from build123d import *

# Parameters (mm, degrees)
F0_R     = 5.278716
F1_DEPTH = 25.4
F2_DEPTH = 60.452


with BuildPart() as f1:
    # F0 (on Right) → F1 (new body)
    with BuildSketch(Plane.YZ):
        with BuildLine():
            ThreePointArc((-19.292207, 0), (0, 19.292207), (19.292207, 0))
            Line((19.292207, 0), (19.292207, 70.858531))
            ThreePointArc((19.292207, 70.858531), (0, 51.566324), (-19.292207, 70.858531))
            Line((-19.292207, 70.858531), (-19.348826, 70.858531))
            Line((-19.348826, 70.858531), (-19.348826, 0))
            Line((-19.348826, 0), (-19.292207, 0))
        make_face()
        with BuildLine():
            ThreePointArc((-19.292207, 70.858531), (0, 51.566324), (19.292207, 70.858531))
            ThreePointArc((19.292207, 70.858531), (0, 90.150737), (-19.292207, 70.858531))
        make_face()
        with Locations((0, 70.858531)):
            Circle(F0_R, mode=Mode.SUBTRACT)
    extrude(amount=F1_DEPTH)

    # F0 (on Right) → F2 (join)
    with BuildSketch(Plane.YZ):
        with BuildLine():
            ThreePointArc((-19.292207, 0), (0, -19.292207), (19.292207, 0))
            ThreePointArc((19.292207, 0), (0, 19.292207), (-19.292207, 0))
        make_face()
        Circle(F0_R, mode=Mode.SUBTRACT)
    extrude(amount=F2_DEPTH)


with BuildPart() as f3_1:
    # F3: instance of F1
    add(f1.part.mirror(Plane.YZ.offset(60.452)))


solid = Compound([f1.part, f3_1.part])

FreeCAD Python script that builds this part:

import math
import FreeCAD as App
import Part
import Sketcher

V = App.Vector
Q = App.Units.Quantity

doc = App.newDocument("Part")
body = doc.addObject("PartDesign::Body", "Body")

# Sketch on YZ plane
sketch1 = body.newObject("Sketcher::SketchObject", "Sketch")
sketch1.AttachmentSupport = (doc.getObject("YZ_Plane"), [""])
sketch1.MapMode = "FlatFace"
sketch1.addGeometry(Part.ArcOfCircle(Part.Circle(V(0, 0, 0), V(0, 0, 1), 19.29), math.radians(0), math.radians(180)), False)
sketch1.addGeometry(Part.LineSegment(V(19.29, 0, 0), V(19.29, 70.86, 0)), False)
sketch1.addGeometry(Part.ArcOfCircle(Part.Circle(V(0, 70.86, 0), V(0, 0, 1), 19.29), math.radians(0), math.radians(180)), False)
sketch1.addGeometry(Part.LineSegment(V(-19.29, 70.86, 0), V(-19.35, 70.86, 0)), False)
sketch1.addGeometry(Part.LineSegment(V(-19.35, 70.86, 0), V(-19.35, 0, 0)), False)
sketch1.addGeometry(Part.LineSegment(V(-19.35, 0, 0), V(-19.29, 0, 0)), False)
sketch1.addGeometry(Part.Circle(V(0, 70.86, 0), V(0, 0, 1), 5.28), False)
sketch1.addConstraint(Sketcher.Constraint("Tangent", 0, 1, 1, 1))
sketch1.addConstraint(Sketcher.Constraint("Tangent", 1, 2, 2, 1))
sketch1.addConstraint(Sketcher.Constraint("Coincident", 2, 2, 3, 1))
sketch1.addConstraint(Sketcher.Constraint("Coincident", 3, 2, 4, 1))
sketch1.addConstraint(Sketcher.Constraint("Coincident", 4, 2, 5, 1))
sketch1.addConstraint(Sketcher.Constraint("Coincident", 5, 2, 0, 2))
sketch1.addConstraint(Sketcher.Constraint("Vertical", 1))
sketch1.addConstraint(Sketcher.Constraint("Horizontal", 3))
sketch1.addConstraint(Sketcher.Constraint("Vertical", 4))
sketch1.addConstraint(Sketcher.Constraint("Horizontal", 5))
sketch1.addConstraint(Sketcher.Constraint("Coincident", 0, 3, -1, 1))
sketch1.addConstraint(Sketcher.Constraint("Coincident", 6, 3, 2, 3))
sketch1.addConstraint(Sketcher.Constraint("Equal", 0, 2))
sketch1.addConstraint(Sketcher.Constraint("PointOnObject", 4, 2, -1))
sketch1.addConstraint(Sketcher.Constraint("Horizontal", 1, 2, 2, 2))
sketch1.addConstraint(Sketcher.Constraint("Diameter", 6, Q("10.557432 mm")))
sketch1.addConstraint(Sketcher.Constraint("Radius", 0, Q("19.292207 mm")))
sketch1.addConstraint(Sketcher.Constraint("DistanceX", 3, 2, 3, 1, Q("0.056619 mm")))
sketch1.addConstraint(Sketcher.Constraint("DistanceY", 1, 1, 1, 2, Q("70.858531 mm")))
pad1 = body.newObject("PartDesign::Pad", "Pad")
pad1.Profile = sketch1
pad1.Length = Q("1 in")

# Sketch on YZ plane
sketch2 = body.newObject("Sketcher::SketchObject", "Sketch001")
sketch2.AttachmentSupport = (doc.getObject("YZ_Plane"), [""])
sketch2.MapMode = "FlatFace"
sketch2.addGeometry(Part.Circle(V(0, 0, 0), V(0, 0, 1), 19), False)
sketch2.addGeometry(Part.Circle(V(0, 0, 0), V(0, 0, 1), 5), False)
sketch2.addConstraint(Sketcher.Constraint("Coincident", 0, 3, -1, 1))
sketch2.addConstraint(Sketcher.Constraint("Coincident", 1, 3, -1, 1))
sketch2.addConstraint(Sketcher.Constraint("Diameter", 0, Q("38.584414 mm")))
sketch2.addConstraint(Sketcher.Constraint("Diameter", 1, Q("10.557432 mm")))
pad2 = body.newObject("PartDesign::Pad", "Pad001")
pad2.Profile = sketch2
pad2.Length = Q("2.38 in")
body2 = doc.addObject("PartDesign::Body", "Body001")
doc.recompute()

mirroring = doc.addObject("Part::Mirroring", "Mirroring")
mirroring.Source = body
mirroring.Base = V(60.452, 0, 0)
mirroring.Normal = V(1, 0, 0)
body2.BaseFeature = mirroring
doc.recompute()
mirroring.Visibility = False

doc.recompute()
